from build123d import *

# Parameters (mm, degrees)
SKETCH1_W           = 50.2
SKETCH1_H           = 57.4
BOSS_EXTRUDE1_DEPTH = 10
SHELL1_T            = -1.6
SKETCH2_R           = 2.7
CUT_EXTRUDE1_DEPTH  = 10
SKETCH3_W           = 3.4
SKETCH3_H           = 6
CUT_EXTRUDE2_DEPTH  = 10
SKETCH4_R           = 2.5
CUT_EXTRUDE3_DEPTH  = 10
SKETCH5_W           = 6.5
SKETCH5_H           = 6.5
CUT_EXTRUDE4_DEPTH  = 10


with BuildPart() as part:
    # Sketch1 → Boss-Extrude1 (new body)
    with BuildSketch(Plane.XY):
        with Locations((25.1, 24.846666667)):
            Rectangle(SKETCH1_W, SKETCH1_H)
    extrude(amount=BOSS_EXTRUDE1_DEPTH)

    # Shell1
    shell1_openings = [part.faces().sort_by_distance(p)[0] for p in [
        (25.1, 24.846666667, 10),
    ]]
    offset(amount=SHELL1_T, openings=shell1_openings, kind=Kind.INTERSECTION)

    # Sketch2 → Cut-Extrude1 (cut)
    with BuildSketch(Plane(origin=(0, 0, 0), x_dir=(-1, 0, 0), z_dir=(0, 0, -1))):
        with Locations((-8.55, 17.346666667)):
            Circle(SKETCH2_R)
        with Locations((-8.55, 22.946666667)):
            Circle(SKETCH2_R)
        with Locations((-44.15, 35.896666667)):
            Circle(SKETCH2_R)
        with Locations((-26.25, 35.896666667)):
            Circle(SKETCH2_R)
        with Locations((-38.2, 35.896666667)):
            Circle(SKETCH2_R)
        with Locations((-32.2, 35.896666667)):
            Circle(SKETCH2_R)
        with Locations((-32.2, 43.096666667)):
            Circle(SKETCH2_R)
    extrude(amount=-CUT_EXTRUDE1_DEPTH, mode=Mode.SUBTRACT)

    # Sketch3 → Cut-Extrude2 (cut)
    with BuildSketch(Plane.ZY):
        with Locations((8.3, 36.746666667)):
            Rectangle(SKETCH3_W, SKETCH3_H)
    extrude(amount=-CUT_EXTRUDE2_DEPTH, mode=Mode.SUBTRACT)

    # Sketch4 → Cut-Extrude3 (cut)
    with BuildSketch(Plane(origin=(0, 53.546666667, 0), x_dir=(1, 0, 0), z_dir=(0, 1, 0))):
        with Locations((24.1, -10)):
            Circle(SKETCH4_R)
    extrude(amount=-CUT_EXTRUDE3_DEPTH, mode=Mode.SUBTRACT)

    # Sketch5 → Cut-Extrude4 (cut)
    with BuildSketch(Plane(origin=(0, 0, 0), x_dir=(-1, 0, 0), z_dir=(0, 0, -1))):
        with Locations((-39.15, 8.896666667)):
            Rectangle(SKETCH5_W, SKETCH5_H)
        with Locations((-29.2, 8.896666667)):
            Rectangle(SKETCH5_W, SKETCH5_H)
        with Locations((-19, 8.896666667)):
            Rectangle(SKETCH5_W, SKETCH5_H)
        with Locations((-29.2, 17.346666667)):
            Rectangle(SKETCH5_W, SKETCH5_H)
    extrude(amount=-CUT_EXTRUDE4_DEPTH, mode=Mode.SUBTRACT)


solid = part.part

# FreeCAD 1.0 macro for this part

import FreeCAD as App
import Part
import Sketcher


def faces_at(feature, points):
    """Names of the faces that lie closest to the given points."""
    faces = feature.Shape.Faces
    near = lambda p: min(range(len(faces)), key=lambda i: faces[i].distToShape(Part.Vertex(*p))[0])
    return sorted({f"Face{near(p) + 1}" for p in points})

doc = App.newDocument("Part")
body = doc.addObject("PartDesign::Body", "Body")

# Sketch on XY plane
sketch1 = body.newObject("Sketcher::SketchObject", "Sketch")
sketch1.AttachmentSupport = (doc.getObject("XY_Plane"), [""])
sketch1.MapMode = "FlatFace"
sketch1.addGeometry(Part.LineSegment(App.Vector(0, 54, 0), App.Vector(0, -4, 0)), False)
sketch1.addGeometry(Part.LineSegment(App.Vector(0, -4, 0), App.Vector(50, -4, 0)), False)
sketch1.addGeometry(Part.LineSegment(App.Vector(50, -4, 0), App.Vector(50, 54, 0)), False)
sketch1.addGeometry(Part.LineSegment(App.Vector(50, 54, 0), App.Vector(0, 54, 0)), False)
sketch1.addConstraint(Sketcher.Constraint("Coincident", 0, 2, 1, 1))
sketch1.addConstraint(Sketcher.Constraint("Coincident", 1, 2, 2, 1))
sketch1.addConstraint(Sketcher.Constraint("Coincident", 2, 2, 3, 1))
sketch1.addConstraint(Sketcher.Constraint("Coincident", 3, 2, 0, 1))
sketch1.addConstraint(Sketcher.Constraint("Vertical", 0))
sketch1.addConstraint(Sketcher.Constraint("Horizontal", 1))
sketch1.addConstraint(Sketcher.Constraint("Vertical", 2))
sketch1.addConstraint(Sketcher.Constraint("Horizontal", 3))
sketch1.addConstraint(Sketcher.Constraint("PointOnObject", 0, 2, -2))
sketch1.addConstraint(Sketcher.Constraint("DistanceX", 1, 1, 1, 2, 50.2))
sketch1.addConstraint(Sketcher.Constraint("DistanceY", 0, 2, 0, 1, 57.4))
sketch1.addConstraint(Sketcher.Constraint("DistanceY", 0, 2, -1, 1, 3.853333))
pad1 = body.newObject("PartDesign::Pad", "Pad")
pad1.Profile = sketch1
pad1.Length = 10
doc.recompute()

thickness = body.newObject("PartDesign::Thickness", "Thickness")
thickness.Base = (pad1, faces_at(pad1, [(25.1, 24.847, 10)]))
thickness.Value = 1.6
thickness.Reversed = True
thickness.Join = "Intersection"

# Sketch on XY plane
sketch2 = body.newObject("Sketcher::SketchObject", "Sketch001")
sketch2.AttachmentSupport = (doc.getObject("XY_Plane"), [""])
sketch2.MapMode = "FlatFace"
sketch2.addGeometry(Part.Circle(App.Vector(8.6, 17.3, 0), App.Vector(0, 0, 1), 2.7), False)
sketch2.addGeometry(Part.Circle(App.Vector(8.6, 22.9, 0), App.Vector(0, 0, 1), 2.7), False)
sketch2.addGeometry(Part.Circle(App.Vector(44.1, 35.9, 0), App.Vector(0, 0, 1), 2.7), False)
sketch2.addGeometry(Part.Circle(App.Vector(26.2, 35.9, 0), App.Vector(0, 0, 1), 2.7), False)
sketch2.addGeometry(Part.Circle(App.Vector(38.2, 35.9, 0), App.Vector(0, 0, 1), 2.7), False)
sketch2.addGeometry(Part.Circle(App.Vector(32.2, 35.9, 0), App.Vector(0, 0, 1), 2.7), False)
sketch2.addGeometry(Part.Circle(App.Vector(32.2, 43.1, 0), App.Vector(0, 0, 1), 2.7), False)
sketch2.addConstraint(Sketcher.Constraint("Equal", 0, 1))
sketch2.addConstraint(Sketcher.Constraint("Equal", 1, 2))
sketch2.addConstraint(Sketcher.Constraint("Equal", 2, 3))
sketch2.addConstraint(Sketcher.Constraint("Equal", 3, 4))
sketch2.addConstraint(Sketcher.Constraint("Equal", 4, 5))
sketch2.addConstraint(Sketcher.Constraint("Equal", 5, 6))
sketch2.addConstraint(Sketcher.Constraint("Horizontal", 2, 3, 3, 3))
sketch2.addConstraint(Sketcher.Constraint("Horizontal", 3, 3, 4, 3))
sketch2.addConstraint(Sketcher.Constraint("Horizontal", 4, 3, 5, 3))
sketch2.addConstraint(Sketcher.Constraint("Vertical", 0, 3, 1, 3))
sketch2.addConstraint(Sketcher.Constraint("Vertical", 5, 3, 6, 3))
sketch2.addConstraint(Sketcher.Constraint("Diameter", 0, 5.4))
sketch2.addConstraint(Sketcher.Constraint("DistanceX", 5, 3, 4, 3, 6.0))
sketch2.addConstraint(Sketcher.Constraint("DistanceX", -1, 1, 4, 3, 38.2))
sketch2.addConstraint(Sketcher.Constraint("DistanceY", 0, 3, 1, 3, 5.6))
sketch2.addConstraint(Sketcher.Constraint("DistanceX", 1, 3, 2, 3, 35.6))
sketch2.addConstraint(Sketcher.Constraint("DistanceX", 3, 3, 2, 3, 17.9))
sketch2.addConstraint(Sketcher.Constraint("DistanceY", 5, 3, 6, 3, 7.2))
sketch2.addConstraint(Sketcher.Constraint("DistanceX", -1, 1, 0, 3, 8.55))
sketch2.addConstraint(Sketcher.Constraint("DistanceY", 1, 3, 2, 3, 12.95))
sketch2.addConstraint(Sketcher.Constraint("DistanceY", -1, 1, 0, 3, 17.346667))
pocket1 = body.newObject("PartDesign::Pocket", "Pocket")
pocket1.Profile = sketch2
pocket1.Length = 10
pocket1.Reversed = True

# Sketch on YZ plane
sketch3 = body.newObject("Sketcher::SketchObject", "Sketch002")
sketch3.AttachmentSupport = (doc.getObject("YZ_Plane"), [""])
sketch3.MapMode = "FlatFace"
sketch3.addGeometry(Part.LineSegment(App.Vector(39.7, 6.6, 0), App.Vector(33.7, 6.6, 0)), False)
sketch3.addGeometry(Part.LineSegment(App.Vector(33.7, 6.6, 0), App.Vector(33.7, 10, 0)), False)
sketch3.addGeometry(Part.LineSegment(App.Vector(33.7, 10, 0), App.Vector(39.7, 10, 0)), False)
sketch3.addGeometry(Part.LineSegment(App.Vector(39.7, 10, 0), App.Vector(39.7, 6.6, 0)), False)
sketch3.addConstraint(Sketcher.Constraint("Coincident", 0, 2, 1, 1))
sketch3.addConstraint(Sketcher.Constraint("Coincident", 1, 2, 2, 1))
sketch3.addConstraint(Sketcher.Constraint("Coincident", 2, 2, 3, 1))
sketch3.addConstraint(Sketcher.Constraint("Coincident", 3, 2, 0, 1))
sketch3.addConstraint(Sketcher.Constraint("Horizontal", 0))
sketch3.addConstraint(Sketcher.Constraint("Vertical", 1))
sketch3.addConstraint(Sketcher.Constraint("Horizontal", 2))
sketch3.addConstraint(Sketcher.Constraint("Vertical", 3))
sketch3.addConstraint(Sketcher.Constraint("DistanceX", 0, 2, 0, 1, 6.0))
sketch3.addConstraint(Sketcher.Constraint("DistanceY", 1, 1, 1, 2, 3.4))
sketch3.addConstraint(Sketcher.Constraint("DistanceY", -1, 1, 1, 2, 10.0))
sketch3.addConstraint(Sketcher.Constraint("DistanceX", -1, 1, 0, 2, 33.746667))
pocket2 = body.newObject("PartDesign::Pocket", "Pocket001")
pocket2.Profile = sketch3
pocket2.Length = 10
pocket2.Reversed = True

# Sketch on XZ plane
sketch4 = body.newObject("Sketcher::SketchObject", "Sketch003")
sketch4.AttachmentSupport = (doc.getObject("XZ_Plane"), [""])
sketch4.MapMode = "FlatFace"
sketch4.AttachmentOffset = App.Placement(App.Vector(0, 0, -53.546667), App.Rotation())
sketch4.addGeometry(Part.Circle(App.Vector(24.1, 10, 0), App.Vector(0, 0, 1), 2.5), False)
sketch4.addConstraint(Sketcher.Constraint("Diameter", 0, 5.0))
sketch4.addConstraint(Sketcher.Constraint("DistanceY", -1, 1, 0, 3, 10.0))
sketch4.addConstraint(Sketcher.Constraint("DistanceX", -1, 1, 0, 3, 24.1))
pocket3 = body.newObject("PartDesign::Pocket", "Pocket002")
pocket3.Profile = sketch4
pocket3.Length = 10
pocket3.Reversed = True

# Sketch on XY plane
sketch5 = body.newObject("Sketcher::SketchObject", "Sketch004")
sketch5.AttachmentSupport = (doc.getObject("XY_Plane"), [""])
sketch5.MapMode = "FlatFace"
sketch5.addGeometry(Part.LineSegment(App.Vector(42, 12, 0), App.Vector(42, 6, 0)), False)
sketch5.addGeometry(Part.LineSegment(App.Vector(42, 6, 0), App.Vector(36, 6, 0)), False)
sketch5.addGeometry(Part.LineSegment(App.Vector(36, 6, 0), App.Vector(36, 12, 0)), False)
sketch5.addGeometry(Part.LineSegment(App.Vector(36, 12, 0), App.Vector(42, 12, 0)), False)
sketch5.addGeometry(Part.LineSegment(App.Vector(32, 12, 0), App.Vector(32, 6, 0)), False)
sketch5.addGeometry(Part.LineSegment(App.Vector(32, 6, 0), App.Vector(26, 6, 0)), False)
sketch5.addGeometry(Part.LineSegment(App.Vector(26, 6, 0), App.Vector(26, 12, 0)), False)
sketch5.addGeometry(Part.LineSegment(App.Vector(26, 12, 0), App.Vector(32, 12, 0)), False)
sketch5.addGeometry(Part.LineSegment(App.Vector(22, 12, 0), App.Vector(22, 6, 0)), False)
sketch5.addGeometry(Part.LineSegment(App.Vector(22, 6, 0), App.Vector(16, 6, 0)), False)
sketch5.addGeometry(Part.LineSegment(App.Vector(16, 6, 0), App.Vector(16, 12, 0)), False)
sketch5.addGeometry(Part.LineSegment(App.Vector(16, 12, 0), App.Vector(22, 12, 0)), False)
sketch5.addGeometry(Part.LineSegment(App.Vector(32, 21, 0), App.Vector(32, 14, 0)), False)
sketch5.addGeometry(Part.LineSegment(App.Vector(32, 14, 0), App.Vector(26, 14, 0)), False)
sketch5.addGeometry(Part.LineSegment(App.Vector(26, 14, 0), App.Vector(26, 21, 0)), False)
sketch5.addGeometry(Part.LineSegment(App.Vector(26, 21, 0), App.Vector(32, 21, 0)), False)
sketch5.addConstraint(Sketcher.Constraint("Coincident", 0, 2, 1, 1))
sketch5.addConstraint(Sketcher.Constraint("Coincident", 1, 2, 2, 1))
sketch5.addConstraint(Sketcher.Constraint("Coincident", 2, 2, 3, 1))
sketch5.addConstraint(Sketcher.Constraint("Coincident", 3, 2, 0, 1))
sketch5.addConstraint(Sketcher.Constraint("Coincident", 4, 2, 5, 1))
sketch5.addConstraint(Sketcher.Constraint("Coincident", 5, 2, 6, 1))
sketch5.addConstraint(Sketcher.Constraint("Coincident", 6, 2, 7, 1))
sketch5.addConstraint(Sketcher.Constraint("Coincident", 7, 2, 4, 1))
sketch5.addConstraint(Sketcher.Constraint("Coincident", 8, 2, 9, 1))
sketch5.addConstraint(Sketcher.Constraint("Coincident", 9, 2, 10, 1))
sketch5.addConstraint(Sketcher.Constraint("Coincident", 10, 2, 11, 1))
sketch5.addConstraint(Sketcher.Constraint("Coincident", 11, 2, 8, 1))
sketch5.addConstraint(Sketcher.Constraint("Coincident", 12, 2, 13, 1))
sketch5.addConstraint(Sketcher.Constraint("Coincident", 13, 2, 14, 1))
sketch5.addConstraint(Sketcher.Constraint("Coincident", 14, 2, 15, 1))
sketch5.addConstraint(Sketcher.Constraint("Coincident", 15, 2, 12, 1))
sketch5.addConstraint(Sketcher.Constraint("Vertical", 0))
sketch5.addConstraint(Sketcher.Constraint("Horizontal", 1))
sketch5.addConstraint(Sketcher.Constraint("Vertical", 2))
sketch5.addConstraint(Sketcher.Constraint("Horizontal", 3))
sketch5.addConstraint(Sketcher.Constraint("Vertical", 4))
sketch5.addConstraint(Sketcher.Constraint("Horizontal", 5))
sketch5.addConstraint(Sketcher.Constraint("Vertical", 6))
sketch5.addConstraint(Sketcher.Constraint("Horizontal", 7))
sketch5.addConstraint(Sketcher.Constraint("Vertical", 8))
sketch5.addConstraint(Sketcher.Constraint("Horizontal", 9))
sketch5.addConstraint(Sketcher.Constraint("Vertical", 10))
sketch5.addConstraint(Sketcher.Constraint("Horizontal", 11))
sketch5.addConstraint(Sketcher.Constraint("Vertical", 12))
sketch5.addConstraint(Sketcher.Constraint("Horizontal", 13))
sketch5.addConstraint(Sketcher.Constraint("Vertical", 14))
sketch5.addConstraint(Sketcher.Constraint("Horizontal", 15))
sketch5.addConstraint(Sketcher.Constraint("Horizontal", 1, 2, 4, 2))
sketch5.addConstraint(Sketcher.Constraint("Horizontal", 3, 2, 6, 2))
sketch5.addConstraint(Sketcher.Constraint("Horizontal", 5, 2, 8, 2))
sketch5.addConstraint(Sketcher.Constraint("Horizontal", 7, 2, 10, 2))
sketch5.addConstraint(Sketcher.Constraint("Vertical", 7, 2, 12, 2))
sketch5.addConstraint(Sketcher.Constraint("Vertical", 6, 2, 13, 2))
sketch5.addConstraint(Sketcher.Constraint("Equal", 3, 5))
sketch5.addConstraint(Sketcher.Constraint("Equal", 7, 9))
sketch5.addConstraint(Sketcher.Constraint("Equal", 15, 0))
sketch5.addConstraint(Sketcher.Constraint("Equal", 10, 12))
sketch5.addConstraint(Sketcher.Constraint("DistanceX", 1, 2, 1, 1, 6.5))
sketch5.addConstraint(Sketcher.Constraint("DistanceX", -1, 1, 0, 2, 42.4))
sketch5.addConstraint(Sketcher.Constraint("DistanceX", 8, 2, 5, 2, 3.7))
sketch5.addConstraint(Sketcher.Constraint("DistanceX", -1, 1, 4, 2, 32.45))
sketch5.addConstraint(Sketcher.Constraint("DistanceY", 7, 2, 12, 2, 1.95))
sketch5.addConstraint(Sketcher.Constraint("DistanceY", -1, 1, 0, 2, 5.646667))
pocket4 = body.newObject("PartDesign::Pocket", "Pocket003")
pocket4.Profile = sketch5
pocket4.Length = 10
pocket4.Reversed = True

doc.recompute()
